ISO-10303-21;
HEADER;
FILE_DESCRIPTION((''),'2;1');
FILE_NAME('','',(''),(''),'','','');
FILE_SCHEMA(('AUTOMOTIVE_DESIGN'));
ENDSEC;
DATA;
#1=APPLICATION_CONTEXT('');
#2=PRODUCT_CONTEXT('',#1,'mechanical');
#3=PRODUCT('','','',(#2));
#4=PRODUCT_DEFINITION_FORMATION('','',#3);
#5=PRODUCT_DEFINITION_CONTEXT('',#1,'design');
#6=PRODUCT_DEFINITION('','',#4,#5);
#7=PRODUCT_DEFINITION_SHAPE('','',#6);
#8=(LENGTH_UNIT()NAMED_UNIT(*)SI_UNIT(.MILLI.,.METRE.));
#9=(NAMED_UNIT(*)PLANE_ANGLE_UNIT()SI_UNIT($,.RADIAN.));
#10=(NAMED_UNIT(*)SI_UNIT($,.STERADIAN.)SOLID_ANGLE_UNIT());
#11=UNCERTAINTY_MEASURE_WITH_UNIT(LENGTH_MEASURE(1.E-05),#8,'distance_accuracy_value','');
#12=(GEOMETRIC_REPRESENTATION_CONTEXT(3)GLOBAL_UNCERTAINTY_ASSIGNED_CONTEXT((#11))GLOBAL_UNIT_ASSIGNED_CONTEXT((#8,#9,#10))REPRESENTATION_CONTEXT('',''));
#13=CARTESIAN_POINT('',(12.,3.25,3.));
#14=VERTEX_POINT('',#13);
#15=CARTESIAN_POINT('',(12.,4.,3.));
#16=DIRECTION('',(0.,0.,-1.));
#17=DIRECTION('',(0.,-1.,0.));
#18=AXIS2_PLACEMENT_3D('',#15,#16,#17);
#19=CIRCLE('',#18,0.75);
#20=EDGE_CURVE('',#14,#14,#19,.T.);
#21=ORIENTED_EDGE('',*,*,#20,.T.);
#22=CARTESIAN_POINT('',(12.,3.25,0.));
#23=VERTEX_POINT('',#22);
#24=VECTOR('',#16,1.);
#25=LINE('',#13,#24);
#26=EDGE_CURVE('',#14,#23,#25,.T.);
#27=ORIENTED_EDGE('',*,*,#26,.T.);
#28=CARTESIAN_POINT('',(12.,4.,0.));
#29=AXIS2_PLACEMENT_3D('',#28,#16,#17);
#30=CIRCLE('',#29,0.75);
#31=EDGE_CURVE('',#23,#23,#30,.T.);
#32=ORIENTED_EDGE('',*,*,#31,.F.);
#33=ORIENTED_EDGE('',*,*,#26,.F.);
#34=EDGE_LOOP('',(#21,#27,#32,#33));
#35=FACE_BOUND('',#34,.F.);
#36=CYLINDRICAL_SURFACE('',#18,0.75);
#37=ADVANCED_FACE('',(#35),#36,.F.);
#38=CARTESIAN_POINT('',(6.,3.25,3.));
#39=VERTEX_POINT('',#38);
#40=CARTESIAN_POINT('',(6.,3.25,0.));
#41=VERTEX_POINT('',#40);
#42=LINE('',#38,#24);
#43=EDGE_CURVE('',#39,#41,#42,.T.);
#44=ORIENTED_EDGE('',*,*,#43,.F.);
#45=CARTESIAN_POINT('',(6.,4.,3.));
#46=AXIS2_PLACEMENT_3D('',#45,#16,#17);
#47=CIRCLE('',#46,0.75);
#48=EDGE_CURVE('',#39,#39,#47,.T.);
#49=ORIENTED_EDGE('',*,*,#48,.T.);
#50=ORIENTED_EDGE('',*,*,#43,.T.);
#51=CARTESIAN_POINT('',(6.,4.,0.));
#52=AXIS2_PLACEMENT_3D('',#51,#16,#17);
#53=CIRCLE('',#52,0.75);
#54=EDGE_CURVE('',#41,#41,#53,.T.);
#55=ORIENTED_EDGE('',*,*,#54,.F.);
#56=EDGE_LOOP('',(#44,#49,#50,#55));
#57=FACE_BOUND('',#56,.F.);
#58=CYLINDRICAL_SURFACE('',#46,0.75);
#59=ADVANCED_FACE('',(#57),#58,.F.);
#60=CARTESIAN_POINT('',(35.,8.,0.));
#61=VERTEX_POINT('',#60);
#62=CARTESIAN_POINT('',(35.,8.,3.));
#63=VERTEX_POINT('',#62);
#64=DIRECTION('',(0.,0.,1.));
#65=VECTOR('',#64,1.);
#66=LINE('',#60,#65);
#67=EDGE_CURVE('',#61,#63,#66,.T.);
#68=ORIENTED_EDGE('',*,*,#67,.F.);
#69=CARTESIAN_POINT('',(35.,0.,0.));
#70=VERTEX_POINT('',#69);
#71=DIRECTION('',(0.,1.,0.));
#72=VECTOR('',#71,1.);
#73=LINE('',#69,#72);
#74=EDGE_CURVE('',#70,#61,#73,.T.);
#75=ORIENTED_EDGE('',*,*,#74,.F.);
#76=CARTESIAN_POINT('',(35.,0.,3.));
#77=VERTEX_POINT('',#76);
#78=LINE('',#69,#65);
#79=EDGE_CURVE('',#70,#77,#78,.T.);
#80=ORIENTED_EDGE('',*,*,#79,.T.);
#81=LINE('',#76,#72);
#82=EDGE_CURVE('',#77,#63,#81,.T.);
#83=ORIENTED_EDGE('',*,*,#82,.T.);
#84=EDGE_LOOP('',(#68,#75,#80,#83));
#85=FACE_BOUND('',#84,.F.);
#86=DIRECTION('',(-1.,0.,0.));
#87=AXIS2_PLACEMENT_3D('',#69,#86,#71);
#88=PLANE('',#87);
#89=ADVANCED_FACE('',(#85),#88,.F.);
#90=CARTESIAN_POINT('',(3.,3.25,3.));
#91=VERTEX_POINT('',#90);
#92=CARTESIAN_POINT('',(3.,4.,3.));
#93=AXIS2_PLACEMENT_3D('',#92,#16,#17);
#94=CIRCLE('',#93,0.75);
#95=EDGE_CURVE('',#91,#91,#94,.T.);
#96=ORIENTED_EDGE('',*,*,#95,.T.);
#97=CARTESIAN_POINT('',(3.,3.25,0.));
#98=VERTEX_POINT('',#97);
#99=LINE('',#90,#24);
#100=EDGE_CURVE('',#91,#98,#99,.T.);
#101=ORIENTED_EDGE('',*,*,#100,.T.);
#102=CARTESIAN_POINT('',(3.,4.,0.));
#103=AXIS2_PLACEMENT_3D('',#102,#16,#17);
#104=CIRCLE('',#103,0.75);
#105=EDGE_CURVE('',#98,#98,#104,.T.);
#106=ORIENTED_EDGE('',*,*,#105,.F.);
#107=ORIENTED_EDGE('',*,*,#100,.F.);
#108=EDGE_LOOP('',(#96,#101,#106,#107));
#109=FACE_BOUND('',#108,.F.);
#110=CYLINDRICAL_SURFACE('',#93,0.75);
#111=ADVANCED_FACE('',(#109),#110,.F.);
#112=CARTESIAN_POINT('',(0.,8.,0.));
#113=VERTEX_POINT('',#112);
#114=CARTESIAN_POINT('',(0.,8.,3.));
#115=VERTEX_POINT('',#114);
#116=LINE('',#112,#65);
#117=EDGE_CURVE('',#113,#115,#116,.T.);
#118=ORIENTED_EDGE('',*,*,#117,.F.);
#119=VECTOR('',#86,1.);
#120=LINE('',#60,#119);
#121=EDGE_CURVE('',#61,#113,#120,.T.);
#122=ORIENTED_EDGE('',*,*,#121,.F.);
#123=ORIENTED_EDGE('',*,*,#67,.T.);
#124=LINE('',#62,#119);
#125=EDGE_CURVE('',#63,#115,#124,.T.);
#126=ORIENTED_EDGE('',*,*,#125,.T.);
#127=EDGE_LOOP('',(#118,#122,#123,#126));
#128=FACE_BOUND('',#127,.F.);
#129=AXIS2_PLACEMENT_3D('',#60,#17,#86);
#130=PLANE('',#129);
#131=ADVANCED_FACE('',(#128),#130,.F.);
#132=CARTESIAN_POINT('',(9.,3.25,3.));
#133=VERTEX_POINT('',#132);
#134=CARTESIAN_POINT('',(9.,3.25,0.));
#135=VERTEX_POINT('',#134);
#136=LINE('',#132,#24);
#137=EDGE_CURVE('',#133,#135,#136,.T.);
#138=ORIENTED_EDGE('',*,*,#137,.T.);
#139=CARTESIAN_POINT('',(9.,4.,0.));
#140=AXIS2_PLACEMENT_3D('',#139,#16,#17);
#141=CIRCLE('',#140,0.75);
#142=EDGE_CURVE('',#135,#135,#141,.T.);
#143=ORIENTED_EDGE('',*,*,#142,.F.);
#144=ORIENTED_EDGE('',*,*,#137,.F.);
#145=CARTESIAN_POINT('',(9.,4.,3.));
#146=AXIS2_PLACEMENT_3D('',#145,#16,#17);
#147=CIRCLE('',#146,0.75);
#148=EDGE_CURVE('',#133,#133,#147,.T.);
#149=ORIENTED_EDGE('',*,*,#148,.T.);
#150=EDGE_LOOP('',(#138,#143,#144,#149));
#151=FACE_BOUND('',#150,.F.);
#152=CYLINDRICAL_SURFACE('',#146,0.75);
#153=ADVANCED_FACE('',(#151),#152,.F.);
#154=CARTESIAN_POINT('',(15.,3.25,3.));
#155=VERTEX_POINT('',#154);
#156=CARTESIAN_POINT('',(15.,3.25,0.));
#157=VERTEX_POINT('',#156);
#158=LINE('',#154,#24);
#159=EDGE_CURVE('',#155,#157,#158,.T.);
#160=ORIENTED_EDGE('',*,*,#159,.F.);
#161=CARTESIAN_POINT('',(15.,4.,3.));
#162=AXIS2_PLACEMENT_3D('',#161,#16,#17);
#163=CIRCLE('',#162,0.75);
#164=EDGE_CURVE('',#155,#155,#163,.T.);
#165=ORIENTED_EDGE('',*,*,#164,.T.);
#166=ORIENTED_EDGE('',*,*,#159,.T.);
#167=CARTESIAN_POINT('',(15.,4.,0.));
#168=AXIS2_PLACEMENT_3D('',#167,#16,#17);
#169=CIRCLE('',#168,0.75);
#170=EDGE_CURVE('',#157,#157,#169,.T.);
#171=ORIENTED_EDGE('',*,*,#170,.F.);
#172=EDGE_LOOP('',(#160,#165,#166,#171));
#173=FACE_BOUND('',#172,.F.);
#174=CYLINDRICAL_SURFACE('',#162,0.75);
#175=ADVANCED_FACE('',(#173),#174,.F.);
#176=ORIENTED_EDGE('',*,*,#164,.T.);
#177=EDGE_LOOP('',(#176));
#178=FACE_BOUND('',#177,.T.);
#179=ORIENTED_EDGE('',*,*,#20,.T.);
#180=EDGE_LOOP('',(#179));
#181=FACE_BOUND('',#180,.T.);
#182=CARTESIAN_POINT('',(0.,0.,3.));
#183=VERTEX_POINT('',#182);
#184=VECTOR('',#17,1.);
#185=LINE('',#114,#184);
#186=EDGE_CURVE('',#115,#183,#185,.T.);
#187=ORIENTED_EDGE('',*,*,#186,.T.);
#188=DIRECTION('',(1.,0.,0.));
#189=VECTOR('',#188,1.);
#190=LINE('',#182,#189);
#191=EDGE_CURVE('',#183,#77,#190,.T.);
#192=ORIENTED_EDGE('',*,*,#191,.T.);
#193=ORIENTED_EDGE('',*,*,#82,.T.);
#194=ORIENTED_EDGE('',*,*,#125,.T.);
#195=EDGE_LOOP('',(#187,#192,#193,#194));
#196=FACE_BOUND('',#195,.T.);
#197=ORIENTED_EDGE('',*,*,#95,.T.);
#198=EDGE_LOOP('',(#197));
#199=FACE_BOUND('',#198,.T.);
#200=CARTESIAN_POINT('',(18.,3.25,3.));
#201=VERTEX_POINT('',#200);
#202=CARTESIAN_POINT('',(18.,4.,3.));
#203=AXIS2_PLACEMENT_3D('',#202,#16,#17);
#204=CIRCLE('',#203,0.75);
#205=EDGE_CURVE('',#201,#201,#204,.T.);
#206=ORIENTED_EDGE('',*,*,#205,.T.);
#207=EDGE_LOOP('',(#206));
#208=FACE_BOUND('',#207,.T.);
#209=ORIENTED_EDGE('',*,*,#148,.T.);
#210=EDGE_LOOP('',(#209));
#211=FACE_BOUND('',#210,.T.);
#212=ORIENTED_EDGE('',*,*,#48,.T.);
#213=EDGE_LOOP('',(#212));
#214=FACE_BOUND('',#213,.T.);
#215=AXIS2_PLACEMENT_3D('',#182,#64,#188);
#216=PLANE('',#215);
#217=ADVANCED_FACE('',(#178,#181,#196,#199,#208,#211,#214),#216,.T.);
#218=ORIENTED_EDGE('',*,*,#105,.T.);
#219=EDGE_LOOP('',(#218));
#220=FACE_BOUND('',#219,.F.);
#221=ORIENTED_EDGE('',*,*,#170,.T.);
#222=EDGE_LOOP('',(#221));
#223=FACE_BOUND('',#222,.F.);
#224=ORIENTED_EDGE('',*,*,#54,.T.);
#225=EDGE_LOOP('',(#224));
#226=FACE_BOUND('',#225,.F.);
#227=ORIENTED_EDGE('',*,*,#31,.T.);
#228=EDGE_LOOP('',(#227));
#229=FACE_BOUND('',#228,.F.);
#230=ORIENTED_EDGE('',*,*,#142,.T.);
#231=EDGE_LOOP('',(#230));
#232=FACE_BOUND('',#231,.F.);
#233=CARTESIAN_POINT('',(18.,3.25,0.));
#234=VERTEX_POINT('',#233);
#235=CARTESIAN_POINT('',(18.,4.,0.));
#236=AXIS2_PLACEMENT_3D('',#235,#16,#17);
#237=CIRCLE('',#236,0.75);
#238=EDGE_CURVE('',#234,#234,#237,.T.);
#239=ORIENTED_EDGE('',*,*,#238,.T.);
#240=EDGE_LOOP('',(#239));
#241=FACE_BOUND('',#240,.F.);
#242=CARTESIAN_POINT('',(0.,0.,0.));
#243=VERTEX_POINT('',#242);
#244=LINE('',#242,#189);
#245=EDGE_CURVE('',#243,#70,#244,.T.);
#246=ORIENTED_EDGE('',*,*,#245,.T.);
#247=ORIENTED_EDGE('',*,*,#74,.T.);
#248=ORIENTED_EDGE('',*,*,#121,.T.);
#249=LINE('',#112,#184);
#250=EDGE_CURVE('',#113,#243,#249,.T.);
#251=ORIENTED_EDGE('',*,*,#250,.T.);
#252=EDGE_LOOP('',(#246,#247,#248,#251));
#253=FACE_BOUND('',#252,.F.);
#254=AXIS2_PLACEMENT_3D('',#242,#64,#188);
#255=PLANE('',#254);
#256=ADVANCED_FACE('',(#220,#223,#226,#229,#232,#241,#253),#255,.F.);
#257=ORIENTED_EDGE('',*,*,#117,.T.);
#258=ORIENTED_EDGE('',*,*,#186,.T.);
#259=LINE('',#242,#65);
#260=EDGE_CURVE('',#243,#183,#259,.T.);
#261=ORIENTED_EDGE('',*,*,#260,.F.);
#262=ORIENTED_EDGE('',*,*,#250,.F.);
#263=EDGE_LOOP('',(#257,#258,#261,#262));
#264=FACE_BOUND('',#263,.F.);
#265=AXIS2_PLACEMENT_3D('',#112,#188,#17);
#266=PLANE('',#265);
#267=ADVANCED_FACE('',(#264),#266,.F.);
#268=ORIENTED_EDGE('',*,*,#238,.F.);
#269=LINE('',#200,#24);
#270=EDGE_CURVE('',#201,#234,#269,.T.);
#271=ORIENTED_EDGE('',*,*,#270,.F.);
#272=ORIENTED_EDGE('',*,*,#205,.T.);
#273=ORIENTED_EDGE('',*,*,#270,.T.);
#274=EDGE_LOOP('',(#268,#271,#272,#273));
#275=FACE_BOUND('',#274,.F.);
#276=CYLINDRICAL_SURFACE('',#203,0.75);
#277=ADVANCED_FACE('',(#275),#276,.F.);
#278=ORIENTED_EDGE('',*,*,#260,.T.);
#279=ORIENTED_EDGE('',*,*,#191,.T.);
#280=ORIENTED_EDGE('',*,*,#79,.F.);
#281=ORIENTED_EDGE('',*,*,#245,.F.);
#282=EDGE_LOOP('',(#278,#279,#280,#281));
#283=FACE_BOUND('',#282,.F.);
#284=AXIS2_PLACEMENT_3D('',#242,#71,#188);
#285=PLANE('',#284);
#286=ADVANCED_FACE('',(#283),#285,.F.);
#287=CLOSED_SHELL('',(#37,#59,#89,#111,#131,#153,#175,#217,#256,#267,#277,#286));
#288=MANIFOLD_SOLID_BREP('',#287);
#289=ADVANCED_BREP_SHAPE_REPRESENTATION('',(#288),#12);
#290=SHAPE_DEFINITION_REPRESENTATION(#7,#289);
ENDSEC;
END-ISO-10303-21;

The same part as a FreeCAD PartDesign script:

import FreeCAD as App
import Part
import Sketcher
from FreeCAD import Vector

doc = App.newDocument("Part")
body = doc.addObject("PartDesign::Body", "Body")

sketch1 = body.newObject("Sketcher::SketchObject", "Sketch")
sketch1.AttachmentSupport = (doc.getObject("XY_Plane"), [""])
sketch1.MapMode = "FlatFace"
sketch1.addGeometry([
    Part.LineSegment(Vector(0, 8, 0), Vector(0, 0, 0)),
    Part.LineSegment(Vector(0, 0, 0), Vector(35, 0, 0)),
    Part.LineSegment(Vector(35, 0, 0), Vector(35, 8, 0)),
    Part.LineSegment(Vector(35, 8, 0), Vector(0, 8, 0)),
], False)
sketch1.addConstraint([
    Sketcher.Constraint("Coincident", 0, 2, 1, 1),
    Sketcher.Constraint("Coincident", 1, 2, 2, 1),
    Sketcher.Constraint("Coincident", 2, 2, 3, 1),
    Sketcher.Constraint("Coincident", 3, 2, 0, 1),
    Sketcher.Constraint("Vertical", 0),
    Sketcher.Constraint("Horizontal", 1),
    Sketcher.Constraint("Vertical", 2),
    Sketcher.Constraint("Horizontal", 3),
    Sketcher.Constraint("Coincident", 0, 2, -1, 1),
    Sketcher.Constraint("DistanceX", 1, 1, 1, 2, 35.0),
    Sketcher.Constraint("DistanceY", 0, 2, 0, 1, 8.0),
])
pad1 = body.newObject("PartDesign::Pad", "Pad")
pad1.Profile = sketch1
pad1.Length = 3

sketch2 = body.newObject("Sketcher::SketchObject", "Sketch001")
sketch2.AttachmentSupport = (doc.getObject("XY_Plane"), [""])
sketch2.MapMode = "FlatFace"
sketch2.AttachmentOffset = App.Placement(Vector(0, 0, 3), App.Rotation())
sketch2.addGeometry([
    Part.Circle(Vector(3, 4, 0), Vector(0, 0, 1), 0.75),
    Part.Circle(Vector(6, 4, 0), Vector(0, 0, 1), 0.75),
    Part.Circle(Vector(9, 4, 0), Vector(0, 0, 1), 0.75),
    Part.Circle(Vector(12, 4, 0), Vector(0, 0, 1), 0.75),
    Part.Circle(Vector(15, 4, 0), Vector(0, 0, 1), 0.75),
    Part.Circle(Vector(18, 4, 0), Vector(0, 0, 1), 0.75),
], False)
sketch2.addConstraint([
    Sketcher.Constraint("Equal", 0, 1),
    Sketcher.Constraint("Equal", 1, 2),
    Sketcher.Constraint("Equal", 2, 3),
    Sketcher.Constraint("Equal", 3, 4),
    Sketcher.Constraint("Equal", 4, 5),
    Sketcher.Constraint("Horizontal", 0, 3, 1, 3),
    Sketcher.Constraint("Horizontal", 1, 3, 2, 3),
    Sketcher.Constraint("Horizontal", 2, 3, 3, 3),
    Sketcher.Constraint("Horizontal", 3, 3, 4, 3),
    Sketcher.Constraint("Horizontal", 4, 3, 5, 3),
    Sketcher.Constraint("Diameter", 0, 1.5),
    Sketcher.Constraint("DistanceX", -1, 1, 0, 3, 3.0),
    Sketcher.Constraint("DistanceY", -1, 1, 0, 3, 4.0),
    Sketcher.Constraint("DistanceX", -1, 1, 1, 3, 6.0),
    Sketcher.Constraint("DistanceX", -1, 1, 2, 3, 9.0),
    Sketcher.Constraint("DistanceX", -1, 1, 3, 3, 12.0),
    Sketcher.Constraint("DistanceX", -1, 1, 4, 3, 15.0),
    Sketcher.Constraint("DistanceX", -1, 1, 5, 3, 18.0),
])
doc.recompute()
hole = body.newObject("PartDesign::Hole", "Hole")
hole.Profile = sketch2
hole.ThreadType = "None"
hole.Diameter = 1.5
hole.DepthType = "ThroughAll"

doc.recompute()
